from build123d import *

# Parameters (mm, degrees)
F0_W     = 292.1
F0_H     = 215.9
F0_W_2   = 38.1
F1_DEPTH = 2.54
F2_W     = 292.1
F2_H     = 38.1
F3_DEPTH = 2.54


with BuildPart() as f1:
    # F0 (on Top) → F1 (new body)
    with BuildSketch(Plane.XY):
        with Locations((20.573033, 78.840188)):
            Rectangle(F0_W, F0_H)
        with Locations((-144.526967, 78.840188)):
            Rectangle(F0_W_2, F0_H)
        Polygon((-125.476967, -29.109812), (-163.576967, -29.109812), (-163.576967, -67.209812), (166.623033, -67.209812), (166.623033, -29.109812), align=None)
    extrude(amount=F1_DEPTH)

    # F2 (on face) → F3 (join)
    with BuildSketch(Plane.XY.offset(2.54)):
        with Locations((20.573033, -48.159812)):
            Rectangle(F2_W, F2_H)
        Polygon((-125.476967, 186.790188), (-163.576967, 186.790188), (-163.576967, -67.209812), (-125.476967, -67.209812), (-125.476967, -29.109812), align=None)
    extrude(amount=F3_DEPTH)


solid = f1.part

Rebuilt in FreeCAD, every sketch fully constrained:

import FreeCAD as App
import Part
import Sketcher
Q = App.Units.Quantity


def add_polygon(sketch, points):
    """Adds a closed chain of lines whose ends are joined by coincident constraints."""
    first, n = sketch.GeometryCount, len(points)
    for a, b in zip(points, points[1:] + points[:1]):
        sketch.addGeometry(Part.LineSegment(App.Vector(*a, 0), App.Vector(*b, 0)), False)
    for i in range(n):
        sketch.addConstraint(Sketcher.Constraint("Coincident", first + i, 2, first + (i + 1) % n, 1))

doc = App.newDocument("Part")
body = doc.addObject("PartDesign::Body", "Body")

# Sketch on XY plane
sketch1 = doc.addObject("Sketcher::SketchObject", "Sketch")
body.addObject(sketch1)
sketch1.AttachmentSupport = (doc.XY_Plane, [""])
sketch1.MapMode = "FlatFace"
add_polygon(sketch1, [(166.623033, 186.790188), (-163.576967, 186.790188), (-163.576967, -67.209812), (166.623033, -67.209812)])  # lines 0-3
sketch1.addConstraint(Sketcher.Constraint("Horizontal", 0))
sketch1.addConstraint(Sketcher.Constraint("Vertical", 1))
sketch1.addConstraint(Sketcher.Constraint("Horizontal", 2))
sketch1.addConstraint(Sketcher.Constraint("Vertical", 3))
sketch1.addConstraint(Sketcher.Constraint("DistanceX", 0, 2, 0, 1, Q("13 in")))
sketch1.addConstraint(Sketcher.Constraint("DistanceY", 1, 2, 1, 1, Q("10 in")))
sketch1.addConstraint(Sketcher.Constraint("DistanceY", -1, 1, 0, 2, 186.790188))
sketch1.addConstraint(Sketcher.Constraint("DistanceX", 0, 2, -1, 1, 163.576967))
pad1 = doc.addObject("PartDesign::Pad", "Pad")
body.addObject(pad1)
pad1.Profile = sketch1
pad1.Length = Q("0.1 in")

# Sketch on XY plane
sketch2 = doc.addObject("Sketcher::SketchObject", "Sketch001")
body.addObject(sketch2)
sketch2.AttachmentSupport = (doc.XY_Plane, [""])
sketch2.MapMode = "FlatFace"
sketch2.AttachmentOffset = App.Placement(App.Vector(0, 0, 0.1 * 25.4), App.Rotation())
add_polygon(sketch2, [(166.623033, -67.209812), (166.623033, -29.109812), (-125.476967, -29.109812), (-125.476967, 186.790188), (-163.576967, 186.790188), (-163.576967, -67.209812)])  # lines 0-5
sketch2.addConstraint(Sketcher.Constraint("Vertical", 0))
sketch2.addConstraint(Sketcher.Constraint("Horizontal", 1))
sketch2.addConstraint(Sketcher.Constraint("Vertical", 2))
sketch2.addConstraint(Sketcher.Constraint("Horizontal", 3))
sketch2.addConstraint(Sketcher.Constraint("Vertical", 4))
sketch2.addConstraint(Sketcher.Constraint("Horizontal", 5))
sketch2.addConstraint(Sketcher.Constraint("Equal", 3, 0))
sketch2.addConstraint(Sketcher.Constraint("DistanceX", 5, 1, 5, 2, Q("13 in")))
sketch2.addConstraint(Sketcher.Constraint("DistanceY", 4, 2, 4, 1, Q("10 in")))
sketch2.addConstraint(Sketcher.Constraint("DistanceX", 1, 2, 1, 1, Q("11.5 in")))
sketch2.addConstraint(Sketcher.Constraint("DistanceY", -1, 1, 2, 2, 186.790188))
sketch2.addConstraint(Sketcher.Constraint("DistanceX", -1, 1, 0, 2, 166.623033))
pad2 = doc.addObject("PartDesign::Pad", "Pad001")
body.addObject(pad2)
pad2.Profile = sketch2
pad2.Length = Q("0.1 in")

doc.recompute()
